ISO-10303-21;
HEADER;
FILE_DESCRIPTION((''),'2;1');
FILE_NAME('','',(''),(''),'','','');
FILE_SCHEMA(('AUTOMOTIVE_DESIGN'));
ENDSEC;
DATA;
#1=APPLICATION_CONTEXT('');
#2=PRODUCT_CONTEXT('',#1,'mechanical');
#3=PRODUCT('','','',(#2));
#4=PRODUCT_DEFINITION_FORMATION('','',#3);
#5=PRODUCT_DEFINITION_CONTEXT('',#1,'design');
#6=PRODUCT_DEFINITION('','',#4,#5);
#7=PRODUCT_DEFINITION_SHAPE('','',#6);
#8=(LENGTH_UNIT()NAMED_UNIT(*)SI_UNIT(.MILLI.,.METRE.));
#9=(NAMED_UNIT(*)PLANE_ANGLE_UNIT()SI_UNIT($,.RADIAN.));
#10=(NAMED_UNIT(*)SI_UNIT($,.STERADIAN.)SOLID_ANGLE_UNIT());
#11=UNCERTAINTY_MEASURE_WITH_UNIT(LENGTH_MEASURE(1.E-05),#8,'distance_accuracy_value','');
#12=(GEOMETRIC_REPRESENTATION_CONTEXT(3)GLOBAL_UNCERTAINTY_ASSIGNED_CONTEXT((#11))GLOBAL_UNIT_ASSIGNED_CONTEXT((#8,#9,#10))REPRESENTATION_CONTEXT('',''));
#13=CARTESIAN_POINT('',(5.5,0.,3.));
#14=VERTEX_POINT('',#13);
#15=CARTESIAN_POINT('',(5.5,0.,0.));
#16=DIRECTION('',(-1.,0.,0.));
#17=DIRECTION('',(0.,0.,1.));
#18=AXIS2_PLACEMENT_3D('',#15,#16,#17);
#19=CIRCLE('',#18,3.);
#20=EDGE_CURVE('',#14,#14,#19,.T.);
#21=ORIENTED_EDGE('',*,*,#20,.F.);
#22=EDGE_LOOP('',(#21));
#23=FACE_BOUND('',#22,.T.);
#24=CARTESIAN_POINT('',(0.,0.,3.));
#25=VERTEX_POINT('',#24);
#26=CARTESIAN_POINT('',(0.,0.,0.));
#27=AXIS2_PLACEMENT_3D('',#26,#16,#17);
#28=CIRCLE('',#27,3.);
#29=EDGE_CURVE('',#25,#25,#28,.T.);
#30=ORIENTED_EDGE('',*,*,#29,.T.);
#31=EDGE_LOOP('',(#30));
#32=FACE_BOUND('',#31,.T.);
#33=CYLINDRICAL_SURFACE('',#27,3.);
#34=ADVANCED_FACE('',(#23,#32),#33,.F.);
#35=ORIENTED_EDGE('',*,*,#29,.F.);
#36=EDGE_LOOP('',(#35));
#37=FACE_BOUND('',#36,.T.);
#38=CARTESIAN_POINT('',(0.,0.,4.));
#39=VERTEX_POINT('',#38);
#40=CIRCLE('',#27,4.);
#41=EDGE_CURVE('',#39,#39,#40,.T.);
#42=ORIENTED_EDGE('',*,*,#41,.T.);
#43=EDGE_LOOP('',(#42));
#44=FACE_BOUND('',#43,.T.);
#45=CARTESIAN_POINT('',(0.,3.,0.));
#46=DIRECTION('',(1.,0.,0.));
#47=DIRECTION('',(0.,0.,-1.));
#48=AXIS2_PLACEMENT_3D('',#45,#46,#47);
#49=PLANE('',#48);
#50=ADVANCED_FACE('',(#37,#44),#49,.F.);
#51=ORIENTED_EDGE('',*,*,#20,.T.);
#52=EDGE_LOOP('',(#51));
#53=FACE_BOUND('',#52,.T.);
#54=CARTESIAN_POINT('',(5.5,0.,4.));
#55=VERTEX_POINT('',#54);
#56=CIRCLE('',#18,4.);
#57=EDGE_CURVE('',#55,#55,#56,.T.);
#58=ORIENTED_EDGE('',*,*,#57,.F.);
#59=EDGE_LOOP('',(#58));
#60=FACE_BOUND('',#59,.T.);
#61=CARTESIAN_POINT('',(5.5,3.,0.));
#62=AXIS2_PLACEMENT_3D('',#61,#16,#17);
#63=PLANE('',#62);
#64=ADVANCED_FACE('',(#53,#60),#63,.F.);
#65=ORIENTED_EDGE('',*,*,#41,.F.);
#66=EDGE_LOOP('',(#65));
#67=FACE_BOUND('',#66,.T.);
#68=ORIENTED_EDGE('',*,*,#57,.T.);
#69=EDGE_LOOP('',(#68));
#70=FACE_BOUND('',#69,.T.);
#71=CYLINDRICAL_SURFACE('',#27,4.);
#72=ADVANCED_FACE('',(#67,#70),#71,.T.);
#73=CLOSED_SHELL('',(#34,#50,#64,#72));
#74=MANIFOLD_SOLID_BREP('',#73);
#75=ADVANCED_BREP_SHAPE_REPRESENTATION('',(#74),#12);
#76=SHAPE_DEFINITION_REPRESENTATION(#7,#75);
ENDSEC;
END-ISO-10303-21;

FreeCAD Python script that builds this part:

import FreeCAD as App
import Part
import Sketcher

V = App.Vector
Q = App.Units.Quantity

doc = App.newDocument("Part")
body = doc.addObject("PartDesign::Body", "Body")

sketch1 = body.newObject("Sketcher::SketchObject", "Sketch")
sketch1.AttachmentSupport = (doc.getObject("XY_Plane"), [""])
sketch1.MapMode = "FlatFace"
sketch1.addGeometry(Part.LineSegment(V(0, 4, 0), V(0, 3, 0)), False)
sketch1.addGeometry(Part.LineSegment(V(0, 3, 0), V(5.5, 3, 0)), False)
sketch1.addGeometry(Part.LineSegment(V(5.5, 3, 0), V(5.5, 4, 0)), False)
sketch1.addGeometry(Part.LineSegment(V(5.5, 4, 0), V(0, 4, 0)), False)
sketch1.addConstraint(Sketcher.Constraint("Coincident", 0, 2, 1, 1))
sketch1.addConstraint(Sketcher.Constraint("Coincident", 1, 2, 2, 1))
sketch1.addConstraint(Sketcher.Constraint("Coincident", 2, 2, 3, 1))
sketch1.addConstraint(Sketcher.Constraint("Coincident", 3, 2, 0, 1))
sketch1.addConstraint(Sketcher.Constraint("Vertical", 0))
sketch1.addConstraint(Sketcher.Constraint("Horizontal", 1))
sketch1.addConstraint(Sketcher.Constraint("Vertical", 2))
sketch1.addConstraint(Sketcher.Constraint("Horizontal", 3))
sketch1.addConstraint(Sketcher.Constraint("PointOnObject", 0, 2, -2))
sketch1.addConstraint(Sketcher.Constraint("DistanceY", 0, 2, 0, 1, Q("1 mm")))
sketch1.addConstraint(Sketcher.Constraint("DistanceX", 1, 1, 1, 2, Q("5.5 mm")))
sketch1.addConstraint(Sketcher.Constraint("DistanceY", -1, 1, 0, 2, Q("3 mm")))
revolution = body.newObject("PartDesign::Revolution", "Revolution")
revolution.Profile = sketch1
revolution.ReferenceAxis = (sketch1, ["H_Axis"])
revolution.Angle = 360

doc.recompute()
